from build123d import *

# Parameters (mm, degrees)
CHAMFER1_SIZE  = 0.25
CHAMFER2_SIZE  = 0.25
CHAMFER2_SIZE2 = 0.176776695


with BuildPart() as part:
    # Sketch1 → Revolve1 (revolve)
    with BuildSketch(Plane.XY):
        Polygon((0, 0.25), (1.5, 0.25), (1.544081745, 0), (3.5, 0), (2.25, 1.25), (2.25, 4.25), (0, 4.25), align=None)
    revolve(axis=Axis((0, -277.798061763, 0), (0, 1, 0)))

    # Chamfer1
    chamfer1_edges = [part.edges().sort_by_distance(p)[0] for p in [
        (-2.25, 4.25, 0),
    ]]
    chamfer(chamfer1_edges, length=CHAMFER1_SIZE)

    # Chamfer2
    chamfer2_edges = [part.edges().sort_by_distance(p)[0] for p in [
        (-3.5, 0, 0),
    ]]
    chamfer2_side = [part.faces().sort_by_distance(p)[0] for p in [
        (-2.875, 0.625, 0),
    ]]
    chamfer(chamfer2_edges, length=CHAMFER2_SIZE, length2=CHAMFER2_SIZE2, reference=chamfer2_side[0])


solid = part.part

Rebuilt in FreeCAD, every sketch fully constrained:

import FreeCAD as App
import Part
import Sketcher
Q = App.Units.Quantity


def edges_at(feature, points):
    """Names of the edges that pass closest to the given points."""
    edges = feature.Shape.Edges
    near = lambda p: min(range(len(edges)), key=lambda i: edges[i].distToShape(Part.Vertex(*p))[0])
    return sorted({f"Edge{near(p) + 1}" for p in points})

doc = App.newDocument("Part")
body = doc.addObject("PartDesign::Body", "Body")

# Sketch on XY plane
sketch1 = doc.addObject("Sketcher::SketchObject", "Sketch")
body.addObject(sketch1)
sketch1.AttachmentSupport = (doc.XY_Plane, [""])
sketch1.MapMode = "FlatFace"
sketch1.addGeometry([
    Part.LineSegment(App.Vector(0, 0.25, 0), App.Vector(1.5, 0.25, 0)),  # 0
    Part.LineSegment(App.Vector(1.5, 0.25, 0), App.Vector(1.54, 0, 0)),  # 1
    Part.LineSegment(App.Vector(1.54, 0, 0), App.Vector(3.5, 0, 0)),  # 2
    Part.LineSegment(App.Vector(3.5, 0, 0), App.Vector(2.25, 1.25, 0)),  # 3
    Part.LineSegment(App.Vector(2.25, 1.25, 0), App.Vector(2.25, 4.25, 0)),  # 4
    Part.LineSegment(App.Vector(2.25, 4.25, 0), App.Vector(0, 4.25, 0)),  # 5
    Part.LineSegment(App.Vector(0, 4.25, 0), App.Vector(0, 0.25, 0)),  # 6
], False)
sketch1.addConstraint([
    Sketcher.Constraint("Coincident", 0, 2, 1, 1),
    Sketcher.Constraint("Coincident", 1, 2, 2, 1),
    Sketcher.Constraint("Coincident", 2, 2, 3, 1),
    Sketcher.Constraint("Coincident", 3, 2, 4, 1),
    Sketcher.Constraint("Coincident", 4, 2, 5, 1),
    Sketcher.Constraint("Coincident", 5, 2, 6, 1),
    Sketcher.Constraint("Coincident", 6, 2, 0, 1),
    Sketcher.Constraint("Horizontal", 0),
    Sketcher.Constraint("Horizontal", 2),
    Sketcher.Constraint("Vertical", 4),
    Sketcher.Constraint("Horizontal", 5),
    Sketcher.Constraint("Vertical", 6),
    Sketcher.Constraint("PointOnObject", 1, 2, -1),
    Sketcher.Constraint("PointOnObject", 5, 2, -2),
    Sketcher.Constraint("DistanceY", 4, 1, 4, 2, Q("3 mm")),
    Sketcher.Constraint("DistanceY", 6, 2, 6, 1, Q("4 mm")),
    Sketcher.Constraint("Angle", 1, Q("-80 deg")),
    Sketcher.Constraint("Angle", 3, Q("135 deg")),
    Sketcher.Constraint("DistanceX", 0, 1, 0, 2, Q("1.5 mm")),
    Sketcher.Constraint("DistanceX", 0, 2, 2, 2, Q("2 mm")),
    Sketcher.Constraint("DistanceX", 5, 2, 5, 1, Q("2.25 mm")),
])
revolution = doc.addObject("PartDesign::Revolution", "Revolution")
body.addObject(revolution)
revolution.Profile = sketch1
revolution.ReferenceAxis = (sketch1, ["V_Axis"])
revolution.Angle = 360
doc.recompute()

chamfer = doc.addObject("PartDesign::Chamfer", "Chamfer")
body.addObject(chamfer)
chamfer.Base = (revolution, edges_at(revolution, [(-2.25, 4.25, 0)]))
chamfer.Size = 0.25
doc.recompute()

chamfer2 = doc.addObject("PartDesign::Chamfer", "Chamfer001")
body.addObject(chamfer2)
chamfer2.Base = (chamfer, edges_at(chamfer, [(-3.5, 0, 0)]))
chamfer2.ChamferType = "Two distances"
chamfer2.Size = 0.25
chamfer2.Size2 = 0.176777

doc.recompute()
